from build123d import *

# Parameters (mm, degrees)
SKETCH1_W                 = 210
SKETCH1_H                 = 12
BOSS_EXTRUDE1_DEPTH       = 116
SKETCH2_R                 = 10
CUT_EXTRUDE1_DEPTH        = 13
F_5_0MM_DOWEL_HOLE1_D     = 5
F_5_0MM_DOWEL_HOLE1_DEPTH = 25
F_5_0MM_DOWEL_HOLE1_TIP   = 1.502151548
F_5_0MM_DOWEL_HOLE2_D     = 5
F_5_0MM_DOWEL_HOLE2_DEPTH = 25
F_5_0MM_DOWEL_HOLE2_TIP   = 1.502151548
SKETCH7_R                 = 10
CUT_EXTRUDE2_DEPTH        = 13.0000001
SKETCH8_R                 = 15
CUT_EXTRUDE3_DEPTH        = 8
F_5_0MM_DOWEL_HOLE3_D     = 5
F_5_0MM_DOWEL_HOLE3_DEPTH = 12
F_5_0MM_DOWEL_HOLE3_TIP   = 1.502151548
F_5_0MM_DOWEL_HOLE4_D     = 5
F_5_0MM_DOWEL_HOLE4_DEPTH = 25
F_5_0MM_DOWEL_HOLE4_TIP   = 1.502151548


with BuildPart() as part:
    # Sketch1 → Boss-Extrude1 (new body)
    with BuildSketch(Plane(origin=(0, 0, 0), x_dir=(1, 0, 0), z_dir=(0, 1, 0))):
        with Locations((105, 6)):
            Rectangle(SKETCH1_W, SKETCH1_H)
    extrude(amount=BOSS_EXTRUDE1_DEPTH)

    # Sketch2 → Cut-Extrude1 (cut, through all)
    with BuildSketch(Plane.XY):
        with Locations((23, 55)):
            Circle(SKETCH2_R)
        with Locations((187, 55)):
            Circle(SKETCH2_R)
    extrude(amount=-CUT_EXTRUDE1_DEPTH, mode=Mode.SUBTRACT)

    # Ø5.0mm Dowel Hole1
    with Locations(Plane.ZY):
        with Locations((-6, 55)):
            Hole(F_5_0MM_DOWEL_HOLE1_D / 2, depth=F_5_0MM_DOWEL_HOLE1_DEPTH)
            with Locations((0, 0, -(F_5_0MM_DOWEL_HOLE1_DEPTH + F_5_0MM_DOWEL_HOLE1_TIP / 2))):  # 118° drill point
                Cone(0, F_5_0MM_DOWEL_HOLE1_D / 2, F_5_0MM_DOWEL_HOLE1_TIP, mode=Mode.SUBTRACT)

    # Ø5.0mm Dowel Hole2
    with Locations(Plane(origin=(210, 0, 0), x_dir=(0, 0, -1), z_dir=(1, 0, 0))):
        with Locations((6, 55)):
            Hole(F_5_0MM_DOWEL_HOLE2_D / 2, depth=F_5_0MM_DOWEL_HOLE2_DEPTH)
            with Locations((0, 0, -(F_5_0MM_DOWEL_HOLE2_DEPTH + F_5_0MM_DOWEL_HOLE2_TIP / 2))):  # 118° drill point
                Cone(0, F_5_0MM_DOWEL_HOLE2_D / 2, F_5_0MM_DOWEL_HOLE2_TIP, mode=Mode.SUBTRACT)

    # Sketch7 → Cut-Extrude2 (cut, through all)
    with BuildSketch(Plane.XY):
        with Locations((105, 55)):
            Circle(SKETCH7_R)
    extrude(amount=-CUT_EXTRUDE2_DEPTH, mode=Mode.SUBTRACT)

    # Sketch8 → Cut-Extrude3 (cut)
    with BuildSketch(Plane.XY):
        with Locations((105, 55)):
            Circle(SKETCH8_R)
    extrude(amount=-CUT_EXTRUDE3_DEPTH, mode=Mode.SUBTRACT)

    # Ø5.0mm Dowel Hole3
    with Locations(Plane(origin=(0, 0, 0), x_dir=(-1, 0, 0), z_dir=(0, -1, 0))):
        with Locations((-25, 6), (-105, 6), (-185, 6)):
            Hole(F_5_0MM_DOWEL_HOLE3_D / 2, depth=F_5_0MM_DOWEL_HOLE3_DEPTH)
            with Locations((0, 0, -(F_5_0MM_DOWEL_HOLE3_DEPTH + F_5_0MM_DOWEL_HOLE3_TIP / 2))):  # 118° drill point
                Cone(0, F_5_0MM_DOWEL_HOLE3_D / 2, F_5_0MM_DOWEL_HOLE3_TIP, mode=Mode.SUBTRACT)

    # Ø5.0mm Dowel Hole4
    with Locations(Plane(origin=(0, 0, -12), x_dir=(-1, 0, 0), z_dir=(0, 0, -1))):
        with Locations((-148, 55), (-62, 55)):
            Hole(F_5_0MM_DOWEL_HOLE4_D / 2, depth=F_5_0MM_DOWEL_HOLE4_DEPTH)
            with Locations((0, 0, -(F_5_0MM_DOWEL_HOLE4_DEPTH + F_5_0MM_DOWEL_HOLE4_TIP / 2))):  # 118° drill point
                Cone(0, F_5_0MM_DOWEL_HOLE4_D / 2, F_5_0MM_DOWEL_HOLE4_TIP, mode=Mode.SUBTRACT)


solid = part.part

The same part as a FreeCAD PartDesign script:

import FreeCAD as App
import Part
import Sketcher

doc = App.newDocument("Part")
body = doc.addObject("PartDesign::Body", "Body")

# Sketch on XZ plane
sketch1 = body.newObject("Sketcher::SketchObject", "Sketch")
sketch1.AttachmentSupport = (doc.getObject("XZ_Plane"), [""])
sketch1.MapMode = "FlatFace"
sketch1.addGeometry(Part.LineSegment(App.Vector(0, -12, 0), App.Vector(0, 0, 0)), False)
sketch1.addGeometry(Part.LineSegment(App.Vector(0, 0, 0), App.Vector(210, 0, 0)), False)
sketch1.addGeometry(Part.LineSegment(App.Vector(210, 0, 0), App.Vector(210, -12, 0)), False)
sketch1.addGeometry(Part.LineSegment(App.Vector(210, -12, 0), App.Vector(0, -12, 0)), False)
sketch1.addConstraint(Sketcher.Constraint("Coincident", 0, 2, 1, 1))
sketch1.addConstraint(Sketcher.Constraint("Coincident", 1, 2, 2, 1))
sketch1.addConstraint(Sketcher.Constraint("Coincident", 2, 2, 3, 1))
sketch1.addConstraint(Sketcher.Constraint("Coincident", 3, 2, 0, 1))
sketch1.addConstraint(Sketcher.Constraint("Vertical", 0))
sketch1.addConstraint(Sketcher.Constraint("Horizontal", 1))
sketch1.addConstraint(Sketcher.Constraint("Vertical", 2))
sketch1.addConstraint(Sketcher.Constraint("Horizontal", 3))
sketch1.addConstraint(Sketcher.Constraint("Coincident", 0, 2, -1, 1))
sketch1.addConstraint(Sketcher.Constraint("DistanceX", 1, 1, 1, 2, 210.0))
sketch1.addConstraint(Sketcher.Constraint("DistanceY", 0, 1, 0, 2, 12.0))
pad1 = body.newObject("PartDesign::Pad", "Pad")
pad1.Profile = sketch1
pad1.Length = 116
pad1.Reversed = True

# Sketch on XY plane
sketch2 = body.newObject("Sketcher::SketchObject", "Sketch001")
sketch2.AttachmentSupport = (doc.getObject("XY_Plane"), [""])
sketch2.MapMode = "FlatFace"
sketch2.addGeometry(Part.Circle(App.Vector(23, 55, 0), App.Vector(0, 0, 1), 10), False)
sketch2.addGeometry(Part.Circle(App.Vector(187, 55, 0), App.Vector(0, 0, 1), 10), False)
sketch2.addConstraint(Sketcher.Constraint("Equal", 0, 1))
sketch2.addConstraint(Sketcher.Constraint("Horizontal", 0, 3, 1, 3))
sketch2.addConstraint(Sketcher.Constraint("Diameter", 0, 20.0))
sketch2.addConstraint(Sketcher.Constraint("DistanceX", -1, 1, 0, 3, 23.0))
sketch2.addConstraint(Sketcher.Constraint("DistanceY", -1, 1, 0, 3, 55.0))
sketch2.addConstraint(Sketcher.Constraint("DistanceX", -1, 1, 1, 3, 187.0))
pocket1 = body.newObject("PartDesign::Pocket", "Pocket")
pocket1.Profile = sketch2
pocket1.Type = "ThroughAll"

# Sketch on YZ plane
sketch3 = body.newObject("Sketcher::SketchObject", "Sketch002")
sketch3.AttachmentSupport = (doc.getObject("YZ_Plane"), [""])
sketch3.MapMode = "FlatFace"
sketch3.addGeometry(Part.Circle(App.Vector(55, -6, 0), App.Vector(0, 0, 1), 2.5), False)
sketch3.addConstraint(Sketcher.Constraint("Diameter", 0, 5.0))
sketch3.addConstraint(Sketcher.Constraint("DistanceX", -1, 1, 0, 3, 55.0))
sketch3.addConstraint(Sketcher.Constraint("DistanceY", 0, 3, -1, 1, 6.0))
doc.recompute()
hole = body.newObject("PartDesign::Hole", "Hole")
hole.Profile = sketch3
hole.ThreadType = "None"
hole.Diameter = 5
hole.DepthType = "Dimension"
hole.Depth = 25
hole.DrillPoint = "Angled"
hole.DrillPointAngle = 118
hole.Reversed = True

# Sketch on YZ plane
sketch4 = body.newObject("Sketcher::SketchObject", "Sketch003")
sketch4.AttachmentSupport = (doc.getObject("YZ_Plane"), [""])
sketch4.MapMode = "FlatFace"
sketch4.AttachmentOffset = App.Placement(App.Vector(0, 0, 210), App.Rotation())
sketch4.addGeometry(Part.Circle(App.Vector(55, -6, 0), App.Vector(0, 0, 1), 2.5), False)
sketch4.addConstraint(Sketcher.Constraint("Diameter", 0, 5.0))
sketch4.addConstraint(Sketcher.Constraint("DistanceX", -1, 1, 0, 3, 55.0))
sketch4.addConstraint(Sketcher.Constraint("DistanceY", 0, 3, -1, 1, 6.0))
doc.recompute()
hole2 = body.newObject("PartDesign::Hole", "Hole001")
hole2.Profile = sketch4
hole2.ThreadType = "None"
hole2.Diameter = 5
hole2.DepthType = "Dimension"
hole2.Depth = 25
hole2.DrillPoint = "Angled"
hole2.DrillPointAngle = 118

# Sketch on XY plane
sketch5 = body.newObject("Sketcher::SketchObject", "Sketch004")
sketch5.AttachmentSupport = (doc.getObject("XY_Plane"), [""])
sketch5.MapMode = "FlatFace"
sketch5.addGeometry(Part.Circle(App.Vector(105, 55, 0), App.Vector(0, 0, 1), 10), False)
sketch5.addConstraint(Sketcher.Constraint("Diameter", 0, 20.0))
sketch5.addConstraint(Sketcher.Constraint("DistanceX", -1, 1, 0, 3, 105.0))
sketch5.addConstraint(Sketcher.Constraint("DistanceY", -1, 1, 0, 3, 55.0))
pocket2 = body.newObject("PartDesign::Pocket", "Pocket001")
pocket2.Profile = sketch5
pocket2.Type = "ThroughAll"

# Sketch on XY plane
sketch6 = body.newObject("Sketcher::SketchObject", "Sketch005")
sketch6.AttachmentSupport = (doc.getObject("XY_Plane"), [""])
sketch6.MapMode = "FlatFace"
sketch6.addGeometry(Part.Circle(App.Vector(105, 55, 0), App.Vector(0, 0, 1), 15), False)
sketch6.addConstraint(Sketcher.Constraint("Diameter", 0, 30.0))
sketch6.addConstraint(Sketcher.Constraint("DistanceX", -1, 1, 0, 3, 105.0))
sketch6.addConstraint(Sketcher.Constraint("DistanceY", -1, 1, 0, 3, 55.0))
pocket3 = body.newObject("PartDesign::Pocket", "Pocket002")
pocket3.Profile = sketch6
pocket3.Length = 8

# Sketch on XZ plane
sketch7 = body.newObject("Sketcher::SketchObject", "Sketch006")
sketch7.AttachmentSupport = (doc.getObject("XZ_Plane"), [""])
sketch7.MapMode = "FlatFace"
sketch7.addGeometry(Part.Circle(App.Vector(25, -6, 0), App.Vector(0, 0, 1), 2.5), False)
sketch7.addGeometry(Part.Circle(App.Vector(105, -6, 0), App.Vector(0, 0, 1), 2.5), False)
sketch7.addGeometry(Part.Circle(App.Vector(185, -6, 0), App.Vector(0, 0, 1), 2.5), False)
sketch7.addConstraint(Sketcher.Constraint("Equal", 0, 1))
sketch7.addConstraint(Sketcher.Constraint("Equal", 1, 2))
sketch7.addConstraint(Sketcher.Constraint("Horizontal", 0, 3, 1, 3))
sketch7.addConstraint(Sketcher.Constraint("Horizontal", 1, 3, 2, 3))
sketch7.addConstraint(Sketcher.Constraint("Diameter", 0, 5.0))
sketch7.addConstraint(Sketcher.Constraint("DistanceX", -1, 1, 0, 3, 25.0))
sketch7.addConstraint(Sketcher.Constraint("DistanceY", 0, 3, -1, 1, 6.0))
sketch7.addConstraint(Sketcher.Constraint("DistanceX", -1, 1, 1, 3, 105.0))
sketch7.addConstraint(Sketcher.Constraint("DistanceX", -1, 1, 2, 3, 185.0))
doc.recompute()
hole3 = body.newObject("PartDesign::Hole", "Hole002")
hole3.Profile = sketch7
hole3.ThreadType = "None"
hole3.Diameter = 5
hole3.DepthType = "Dimension"
hole3.Depth = 12
hole3.DrillPoint = "Angled"
hole3.DrillPointAngle = 118

# Sketch on XY plane
sketch8 = body.newObject("Sketcher::SketchObject", "Sketch007")
sketch8.AttachmentSupport = (doc.getObject("XY_Plane"), [""])
sketch8.MapMode = "FlatFace"
sketch8.AttachmentOffset = App.Placement(App.Vector(0, 0, -12), App.Rotation())
sketch8.addGeometry(Part.Circle(App.Vector(148, 55, 0), App.Vector(0, 0, 1), 2.5), False)
sketch8.addGeometry(Part.Circle(App.Vector(62, 55, 0), App.Vector(0, 0, 1), 2.5), False)
sketch8.addConstraint(Sketcher.Constraint("Equal", 0, 1))
sketch8.addConstraint(Sketcher.Constraint("Horizontal", 0, 3, 1, 3))
sketch8.addConstraint(Sketcher.Constraint("Diameter", 0, 5.0))
sketch8.addConstraint(Sketcher.Constraint("DistanceX", -1, 1, 0, 3, 148.0))
sketch8.addConstraint(Sketcher.Constraint("DistanceY", -1, 1, 0, 3, 55.0))
sketch8.addConstraint(Sketcher.Constraint("DistanceX", -1, 1, 1, 3, 62.0))
doc.recompute()
hole4 = body.newObject("PartDesign::Hole", "Hole003")
hole4.Profile = sketch8
hole4.ThreadType = "None"
hole4.Diameter = 5
hole4.DepthType = "Dimension"
hole4.Depth = 25
hole4.DrillPoint = "Angled"
hole4.DrillPointAngle = 118
hole4.Reversed = True

doc.recompute()
